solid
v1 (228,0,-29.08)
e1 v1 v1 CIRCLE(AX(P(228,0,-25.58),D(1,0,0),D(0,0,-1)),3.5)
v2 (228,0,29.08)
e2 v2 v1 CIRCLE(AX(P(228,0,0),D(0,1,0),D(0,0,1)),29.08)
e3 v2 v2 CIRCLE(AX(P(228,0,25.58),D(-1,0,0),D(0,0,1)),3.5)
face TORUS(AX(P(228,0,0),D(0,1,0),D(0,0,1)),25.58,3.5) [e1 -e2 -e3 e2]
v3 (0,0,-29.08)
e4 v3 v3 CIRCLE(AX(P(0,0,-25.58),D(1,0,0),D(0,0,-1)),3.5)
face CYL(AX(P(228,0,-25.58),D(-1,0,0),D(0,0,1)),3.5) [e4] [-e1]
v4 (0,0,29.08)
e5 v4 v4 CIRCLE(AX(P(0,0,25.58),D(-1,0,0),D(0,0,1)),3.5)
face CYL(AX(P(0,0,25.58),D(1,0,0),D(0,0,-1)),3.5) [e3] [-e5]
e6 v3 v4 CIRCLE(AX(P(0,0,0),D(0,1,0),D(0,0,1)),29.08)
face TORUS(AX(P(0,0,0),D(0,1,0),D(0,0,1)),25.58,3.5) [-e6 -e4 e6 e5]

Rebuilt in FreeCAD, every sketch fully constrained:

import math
import FreeCAD as App
import Part
import Sketcher
Q = App.Units.Quantity

doc = App.newDocument("Part")
body = doc.addObject("PartDesign::Body", "Body")

sketch1 = doc.addObject("Sketcher::SketchObject", "Sketch")
body.addObject(sketch1)
sketch1.AttachmentSupport = (doc.YZ_Plane, [""])
sketch1.MapMode = "FlatFace"
sketch1.addGeometry(Part.Circle(App.Vector(0, -25.6, 0), App.Vector(0, 0, 1), 3.5), False)
sketch1.addConstraint(Sketcher.Constraint("PointOnObject", 0, 3, -2))
sketch1.addConstraint(Sketcher.Constraint("Diameter", 0, Q("7 mm")))
sketch1.addConstraint(Sketcher.Constraint("DistanceY", 0, 3, -1, 1, Q("25.58 mm")))

sketch2 = doc.addObject("Sketcher::SketchObject", "Sketch001")
body.addObject(sketch2)
sketch2.AttachmentSupport = (doc.XZ_Plane, [""])
sketch2.MapMode = "FlatFace"
sketch2.addGeometry(Part.LineSegment(App.Vector(0, -26, 0), App.Vector(228, -26, 0)), False)
sketch2.addGeometry(Part.ArcOfCircle(Part.Circle(App.Vector(228, 0, 0), App.Vector(0, 0, 1), 26), math.radians(-90), math.radians(90)), False)
sketch2.addGeometry(Part.LineSegment(App.Vector(228, 26, 0), App.Vector(0, 26, 0)), False)
sketch2.addGeometry(Part.ArcOfCircle(Part.Circle(App.Vector(0, 0, 0), App.Vector(0, 0, 1), 26), math.radians(90), math.radians(270)), False)
sketch2.addConstraint(Sketcher.Constraint("Tangent", 0, 2, 1, 1))
sketch2.addConstraint(Sketcher.Constraint("Tangent", 1, 2, 2, 1))
sketch2.addConstraint(Sketcher.Constraint("Tangent", 2, 2, 3, 1))
sketch2.addConstraint(Sketcher.Constraint("Tangent", 3, 2, 0, 1))
sketch2.addConstraint(Sketcher.Constraint("Horizontal", 0))
sketch2.addConstraint(Sketcher.Constraint("Horizontal", 2))
sketch2.addConstraint(Sketcher.Constraint("Coincident", 3, 3, -1, 1))
sketch2.addConstraint(Sketcher.Constraint("DistanceX", 0, 1, 0, 2, Q("228 mm")))
sketch2.addConstraint(Sketcher.Constraint("Radius", 1, Q("25.58 mm")))
doc.recompute()

additivepipe = doc.addObject("PartDesign::AdditivePipe", "AdditivePipe")
body.addObject(additivepipe)
additivepipe.Profile = sketch1
additivepipe.Spine = (sketch2, ["Edge1", "Edge2", "Edge3", "Edge4"])

doc.recompute()
